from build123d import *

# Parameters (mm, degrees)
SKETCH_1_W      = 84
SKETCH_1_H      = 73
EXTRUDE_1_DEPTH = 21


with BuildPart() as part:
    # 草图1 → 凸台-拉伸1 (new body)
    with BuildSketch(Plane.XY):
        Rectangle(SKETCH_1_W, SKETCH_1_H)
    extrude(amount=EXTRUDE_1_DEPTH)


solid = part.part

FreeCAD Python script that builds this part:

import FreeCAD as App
import Part
import Sketcher
Q = App.Units.Quantity

doc = App.newDocument("Part")
body = doc.addObject("PartDesign::Body", "Body")

# Sketch on XY plane
sketch1 = body.newObject("Sketcher::SketchObject", "Sketch")
sketch1.AttachmentSupport = (doc.getObject("XY_Plane"), [""])
sketch1.MapMode = "FlatFace"
sketch1.addGeometry(Part.LineSegment(App.Vector(-42, 36, 0), App.Vector(-42, -36, 0)), False)
sketch1.addGeometry(Part.LineSegment(App.Vector(-42, -36, 0), App.Vector(42, -36, 0)), False)
sketch1.addGeometry(Part.LineSegment(App.Vector(42, -36, 0), App.Vector(42, 36, 0)), False)
sketch1.addGeometry(Part.LineSegment(App.Vector(42, 36, 0), App.Vector(-42, 36, 0)), False)
sketch1.addConstraint(Sketcher.Constraint("Coincident", 0, 2, 1, 1))
sketch1.addConstraint(Sketcher.Constraint("Coincident", 1, 2, 2, 1))
sketch1.addConstraint(Sketcher.Constraint("Coincident", 2, 2, 3, 1))
sketch1.addConstraint(Sketcher.Constraint("Coincident", 3, 2, 0, 1))
sketch1.addConstraint(Sketcher.Constraint("Vertical", 0))
sketch1.addConstraint(Sketcher.Constraint("Horizontal", 1))
sketch1.addConstraint(Sketcher.Constraint("Vertical", 2))
sketch1.addConstraint(Sketcher.Constraint("Horizontal", 3))
sketch1.addConstraint(Sketcher.Constraint("Symmetric", 0, 2, 2, 2, -1, 1))
sketch1.addConstraint(Sketcher.Constraint("DistanceX", 1, 1, 1, 2, Q("84 mm")))
sketch1.addConstraint(Sketcher.Constraint("DistanceY", 0, 2, 0, 1, Q("73 mm")))
pad1 = body.newObject("PartDesign::Pad", "Pad")
pad1.Profile = sketch1
pad1.Length = 21

doc.recompute()
